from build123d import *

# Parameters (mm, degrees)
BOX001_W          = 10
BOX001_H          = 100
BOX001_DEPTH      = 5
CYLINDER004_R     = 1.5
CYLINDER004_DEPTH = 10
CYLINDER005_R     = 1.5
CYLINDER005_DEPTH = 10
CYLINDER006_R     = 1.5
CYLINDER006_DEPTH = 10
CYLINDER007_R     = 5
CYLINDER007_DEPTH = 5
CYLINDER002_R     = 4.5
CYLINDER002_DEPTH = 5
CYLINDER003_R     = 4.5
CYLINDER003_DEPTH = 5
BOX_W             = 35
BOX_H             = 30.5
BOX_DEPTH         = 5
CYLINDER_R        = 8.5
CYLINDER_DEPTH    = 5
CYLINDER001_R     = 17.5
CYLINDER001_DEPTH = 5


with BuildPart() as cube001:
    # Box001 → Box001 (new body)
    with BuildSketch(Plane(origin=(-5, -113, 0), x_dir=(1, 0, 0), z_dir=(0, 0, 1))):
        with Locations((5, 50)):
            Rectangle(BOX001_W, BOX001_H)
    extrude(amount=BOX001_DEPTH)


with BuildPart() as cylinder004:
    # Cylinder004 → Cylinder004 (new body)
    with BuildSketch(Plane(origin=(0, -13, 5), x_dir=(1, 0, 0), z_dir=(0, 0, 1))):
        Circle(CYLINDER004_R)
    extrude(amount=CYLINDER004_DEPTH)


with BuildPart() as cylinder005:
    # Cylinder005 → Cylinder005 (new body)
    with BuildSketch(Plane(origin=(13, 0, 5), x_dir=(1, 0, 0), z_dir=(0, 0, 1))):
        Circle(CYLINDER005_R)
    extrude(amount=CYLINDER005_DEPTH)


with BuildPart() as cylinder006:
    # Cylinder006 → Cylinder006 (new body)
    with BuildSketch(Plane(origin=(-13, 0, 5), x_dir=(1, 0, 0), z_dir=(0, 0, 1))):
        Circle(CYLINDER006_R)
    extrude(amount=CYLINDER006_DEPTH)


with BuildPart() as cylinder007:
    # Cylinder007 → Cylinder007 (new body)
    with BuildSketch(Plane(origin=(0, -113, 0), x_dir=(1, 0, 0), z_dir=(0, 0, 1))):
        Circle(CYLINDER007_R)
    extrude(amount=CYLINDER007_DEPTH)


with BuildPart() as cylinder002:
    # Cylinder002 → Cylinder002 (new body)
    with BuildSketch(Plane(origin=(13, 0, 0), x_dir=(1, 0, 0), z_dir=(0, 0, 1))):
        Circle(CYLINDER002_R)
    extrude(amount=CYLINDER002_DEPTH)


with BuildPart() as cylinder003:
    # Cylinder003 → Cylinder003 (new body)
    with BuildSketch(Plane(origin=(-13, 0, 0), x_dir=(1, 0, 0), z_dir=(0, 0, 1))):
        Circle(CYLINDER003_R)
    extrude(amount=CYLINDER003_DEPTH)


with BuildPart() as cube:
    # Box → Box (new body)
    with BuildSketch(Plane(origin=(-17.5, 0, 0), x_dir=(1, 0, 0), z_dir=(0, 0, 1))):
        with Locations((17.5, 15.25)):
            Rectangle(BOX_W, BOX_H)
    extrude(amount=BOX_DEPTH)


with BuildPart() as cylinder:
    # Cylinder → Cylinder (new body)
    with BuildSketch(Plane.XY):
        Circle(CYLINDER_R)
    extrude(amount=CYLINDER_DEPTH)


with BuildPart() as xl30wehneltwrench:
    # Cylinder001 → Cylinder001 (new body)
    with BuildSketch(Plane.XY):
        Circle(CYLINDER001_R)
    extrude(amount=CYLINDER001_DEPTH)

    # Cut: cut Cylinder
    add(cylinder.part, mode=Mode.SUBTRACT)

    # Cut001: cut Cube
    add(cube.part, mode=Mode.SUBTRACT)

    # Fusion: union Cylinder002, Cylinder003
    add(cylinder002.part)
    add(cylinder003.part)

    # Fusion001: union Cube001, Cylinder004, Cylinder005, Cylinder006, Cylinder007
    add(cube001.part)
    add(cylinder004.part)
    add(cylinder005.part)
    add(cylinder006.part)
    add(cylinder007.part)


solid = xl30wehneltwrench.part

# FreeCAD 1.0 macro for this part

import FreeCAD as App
import Part
import Sketcher

V = App.Vector


def add_polygon(sketch, points):
    """Adds a closed chain of lines whose ends are joined by coincident constraints."""
    first, n = sketch.GeometryCount, len(points)
    for a, b in zip(points, points[1:] + points[:1]):
        sketch.addGeometry(Part.LineSegment(App.Vector(*a, 0), App.Vector(*b, 0)), False)
    for i in range(n):
        sketch.addConstraint(Sketcher.Constraint("Coincident", first + i, 2, first + (i + 1) % n, 1))

doc = App.newDocument("Part")
body = doc.addObject("PartDesign::Body", "Body")

# Sketch on XY plane
sketch1 = body.newObject("Sketcher::SketchObject", "Sketch")
sketch1.AttachmentSupport = (doc.getObject("XY_Plane"), [""])
sketch1.MapMode = "FlatFace"
add_polygon(sketch1, [(-5, -13), (-5, -113), (5, -113), (5, -13)])  # lines 0-3
sketch1.addConstraint([
    Sketcher.Constraint("Vertical", 0),
    Sketcher.Constraint("Horizontal", 1),
    Sketcher.Constraint("Vertical", 2),
    Sketcher.Constraint("Horizontal", 3),
    Sketcher.Constraint("DistanceX", 1, 1, 1, 2, 10.0),
    Sketcher.Constraint("DistanceY", 0, 2, 0, 1, 100.0),
    Sketcher.Constraint("DistanceX", 0, 2, -1, 1, 5.0),
    Sketcher.Constraint("DistanceY", 0, 2, -1, 1, 113.0),
])
pad1 = body.newObject("PartDesign::Pad", "Pad")
pad1.Profile = sketch1
pad1.Length = 5
body2 = doc.addObject("PartDesign::Body", "Body001")

# Sketch on XY plane
sketch2 = body2.newObject("Sketcher::SketchObject", "Sketch001")
sketch2.AttachmentSupport = (doc.getObject("XY_Plane001"), [""])
sketch2.MapMode = "FlatFace"
sketch2.AttachmentOffset = App.Placement(V(0, 0, 5), App.Rotation())
sketch2.addGeometry(Part.Circle(V(0, -13, 0), V(0, 0, 1), 1.5), False)
sketch2.addConstraint([
    Sketcher.Constraint("PointOnObject", 0, 3, -2),
    Sketcher.Constraint("Diameter", 0, 3.0),
    Sketcher.Constraint("DistanceY", 0, 3, -1, 1, 13.0),
])
pad2 = body2.newObject("PartDesign::Pad", "Pad001")
pad2.Profile = sketch2
pad2.Length = 10
body3 = doc.addObject("PartDesign::Body", "Body002")

# Sketch on XY plane
sketch3 = body3.newObject("Sketcher::SketchObject", "Sketch002")
sketch3.AttachmentSupport = (doc.getObject("XY_Plane002"), [""])
sketch3.MapMode = "FlatFace"
sketch3.AttachmentOffset = App.Placement(V(0, 0, 5), App.Rotation())
sketch3.addGeometry(Part.Circle(V(13, 0, 0), V(0, 0, 1), 1.5), False)
sketch3.addConstraint([
    Sketcher.Constraint("PointOnObject", 0, 3, -1),
    Sketcher.Constraint("Diameter", 0, 3.0),
    Sketcher.Constraint("DistanceX", -1, 1, 0, 3, 13.0),
])
pad3 = body3.newObject("PartDesign::Pad", "Pad002")
pad3.Profile = sketch3
pad3.Length = 10
body4 = doc.addObject("PartDesign::Body", "Body003")

# Sketch on XY plane
sketch4 = body4.newObject("Sketcher::SketchObject", "Sketch003")
sketch4.AttachmentSupport = (doc.getObject("XY_Plane003"), [""])
sketch4.MapMode = "FlatFace"
sketch4.AttachmentOffset = App.Placement(V(0, 0, 5), App.Rotation())
sketch4.addGeometry(Part.Circle(V(-13, 0, 0), V(0, 0, 1), 1.5), False)
sketch4.addConstraint([
    Sketcher.Constraint("PointOnObject", 0, 3, -1),
    Sketcher.Constraint("Diameter", 0, 3.0),
    Sketcher.Constraint("DistanceX", 0, 3, -1, 1, 13.0),
])
pad4 = body4.newObject("PartDesign::Pad", "Pad003")
pad4.Profile = sketch4
pad4.Length = 10
body5 = doc.addObject("PartDesign::Body", "Body004")

# Sketch on XY plane
sketch5 = body5.newObject("Sketcher::SketchObject", "Sketch004")
sketch5.AttachmentSupport = (doc.getObject("XY_Plane004"), [""])
sketch5.MapMode = "FlatFace"
sketch5.addGeometry(Part.Circle(V(0, -113, 0), V(0, 0, 1), 5), False)
sketch5.addConstraint([
    Sketcher.Constraint("PointOnObject", 0, 3, -2),
    Sketcher.Constraint("Diameter", 0, 10.0),
    Sketcher.Constraint("DistanceY", 0, 3, -1, 1, 113.0),
])
pad5 = body5.newObject("PartDesign::Pad", "Pad004")
pad5.Profile = sketch5
pad5.Length = 5
body6 = doc.addObject("PartDesign::Body", "Body005")

# Sketch on XY plane
sketch6 = body6.newObject("Sketcher::SketchObject", "Sketch005")
sketch6.AttachmentSupport = (doc.getObject("XY_Plane005"), [""])
sketch6.MapMode = "FlatFace"
sketch6.addGeometry(Part.Circle(V(13, 0, 0), V(0, 0, 1), 4.5), False)
sketch6.addConstraint([
    Sketcher.Constraint("PointOnObject", 0, 3, -1),
    Sketcher.Constraint("Diameter", 0, 9.0),
    Sketcher.Constraint("DistanceX", -1, 1, 0, 3, 13.0),
])
pad6 = body6.newObject("PartDesign::Pad", "Pad005")
pad6.Profile = sketch6
pad6.Length = 5
body7 = doc.addObject("PartDesign::Body", "Body006")

# Sketch on XY plane
sketch7 = body7.newObject("Sketcher::SketchObject", "Sketch006")
sketch7.AttachmentSupport = (doc.getObject("XY_Plane006"), [""])
sketch7.MapMode = "FlatFace"
sketch7.addGeometry(Part.Circle(V(-13, 0, 0), V(0, 0, 1), 4.5), False)
sketch7.addConstraint([
    Sketcher.Constraint("PointOnObject", 0, 3, -1),
    Sketcher.Constraint("Diameter", 0, 9.0),
    Sketcher.Constraint("DistanceX", 0, 3, -1, 1, 13.0),
])
pad7 = body7.newObject("PartDesign::Pad", "Pad006")
pad7.Profile = sketch7
pad7.Length = 5
body8 = doc.addObject("PartDesign::Body", "Body007")

# Sketch on XY plane
sketch8 = body8.newObject("Sketcher::SketchObject", "Sketch007")
sketch8.AttachmentSupport = (doc.getObject("XY_Plane007"), [""])
sketch8.MapMode = "FlatFace"
add_polygon(sketch8, [(-17.5, 30.5), (-17.5, 0), (17.5, 0), (17.5, 30.5)])  # lines 0-3
sketch8.addConstraint([
    Sketcher.Constraint("Vertical", 0),
    Sketcher.Constraint("Horizontal", 1),
    Sketcher.Constraint("Vertical", 2),
    Sketcher.Constraint("Horizontal", 3),
    Sketcher.Constraint("Symmetric", 0, 2, 1, 2, -1, 1),
    Sketcher.Constraint("DistanceX", 1, 1, 1, 2, 35.0),
    Sketcher.Constraint("DistanceY", 0, 2, 0, 1, 30.5),
])
pad8 = body8.newObject("PartDesign::Pad", "Pad007")
pad8.Profile = sketch8
pad8.Length = 5
body9 = doc.addObject("PartDesign::Body", "Body008")

# Sketch on XY plane
sketch9 = body9.newObject("Sketcher::SketchObject", "Sketch008")
sketch9.AttachmentSupport = (doc.getObject("XY_Plane008"), [""])
sketch9.MapMode = "FlatFace"
sketch9.addGeometry(Part.Circle(V(0, 0, 0), V(0, 0, 1), 8.5), False)
sketch9.addConstraint([
    Sketcher.Constraint("Coincident", 0, 3, -1, 1),
    Sketcher.Constraint("Diameter", 0, 17.0),
])
pad9 = body9.newObject("PartDesign::Pad", "Pad008")
pad9.Profile = sketch9
pad9.Length = 5
body10 = doc.addObject("PartDesign::Body", "Body009")

# Sketch on XY plane
sketch10 = body10.newObject("Sketcher::SketchObject", "Sketch009")
sketch10.AttachmentSupport = (doc.getObject("XY_Plane009"), [""])
sketch10.MapMode = "FlatFace"
sketch10.addGeometry(Part.Circle(V(0, 0, 0), V(0, 0, 1), 17.5), False)
sketch10.addConstraint([
    Sketcher.Constraint("Coincident", 0, 3, -1, 1),
    Sketcher.Constraint("Diameter", 0, 35.0),
])
pad10 = body10.newObject("PartDesign::Pad", "Pad009")
pad10.Profile = sketch10
pad10.Length = 5
doc.recompute()

boolean = body10.newObject("PartDesign::Boolean", "Boolean")
boolean.Type = "Cut"
boolean.addObjects([body9])
doc.recompute()

boolean2 = body10.newObject("PartDesign::Boolean", "Boolean001")
boolean2.Type = "Cut"
boolean2.addObjects([body8])
doc.recompute()

boolean3 = body10.newObject("PartDesign::Boolean", "Boolean002")
boolean3.Type = "Fuse"
boolean3.addObjects([body6])
doc.recompute()

boolean4 = body10.newObject("PartDesign::Boolean", "Boolean003")
boolean4.Type = "Fuse"
boolean4.addObjects([body7])
doc.recompute()

boolean5 = body10.newObject("PartDesign::Boolean", "Boolean004")
boolean5.Type = "Fuse"
boolean5.addObjects([body])
doc.recompute()

boolean6 = body10.newObject("PartDesign::Boolean", "Boolean005")
boolean6.Type = "Fuse"
boolean6.addObjects([body2])
doc.recompute()

boolean7 = body10.newObject("PartDesign::Boolean", "Boolean006")
boolean7.Type = "Fuse"
boolean7.addObjects([body3])
doc.recompute()

boolean8 = body10.newObject("PartDesign::Boolean", "Boolean007")
boolean8.Type = "Fuse"
boolean8.addObjects([body4])
doc.recompute()

boolean9 = body10.newObject("PartDesign::Boolean", "Boolean008")
boolean9.Type = "Fuse"
boolean9.addObjects([body5])

doc.recompute()
